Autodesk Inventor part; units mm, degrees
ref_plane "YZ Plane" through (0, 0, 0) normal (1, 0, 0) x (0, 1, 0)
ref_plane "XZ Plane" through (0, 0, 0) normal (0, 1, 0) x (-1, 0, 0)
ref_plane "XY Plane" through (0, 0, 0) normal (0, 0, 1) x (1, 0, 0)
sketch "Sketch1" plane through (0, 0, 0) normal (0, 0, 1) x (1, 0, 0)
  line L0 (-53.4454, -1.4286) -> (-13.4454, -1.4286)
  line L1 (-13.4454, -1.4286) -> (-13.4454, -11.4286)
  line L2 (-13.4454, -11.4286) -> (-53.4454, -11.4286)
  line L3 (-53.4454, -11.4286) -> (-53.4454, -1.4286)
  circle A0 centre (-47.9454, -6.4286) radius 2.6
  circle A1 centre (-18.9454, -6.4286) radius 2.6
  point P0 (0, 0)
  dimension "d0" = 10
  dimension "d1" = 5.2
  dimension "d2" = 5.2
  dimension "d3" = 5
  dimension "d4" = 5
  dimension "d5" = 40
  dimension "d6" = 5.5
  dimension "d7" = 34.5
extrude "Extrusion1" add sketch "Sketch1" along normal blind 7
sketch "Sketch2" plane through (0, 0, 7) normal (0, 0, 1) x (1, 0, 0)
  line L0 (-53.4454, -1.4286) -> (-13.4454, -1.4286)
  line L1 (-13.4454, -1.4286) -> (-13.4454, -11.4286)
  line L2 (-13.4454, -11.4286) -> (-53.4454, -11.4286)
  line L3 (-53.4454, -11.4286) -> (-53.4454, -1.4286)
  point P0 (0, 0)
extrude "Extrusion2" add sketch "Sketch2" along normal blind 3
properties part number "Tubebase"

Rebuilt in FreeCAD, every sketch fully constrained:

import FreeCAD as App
import Part
import Sketcher
from FreeCAD import Vector

doc = App.newDocument("Part")
params = doc.addObject("Spreadsheet::Sheet", "Params")
for row, (alias, value) in enumerate([
    ("sketch1_diameter", "5.2 mm"),
    ("sketch1_width", "40 mm"),
    ("sketch1_height", "10 mm"),
    ("pad1_length", "7 mm"),
    ("sketch2_width", "40 mm"),
    ("sketch2_height", "10 mm"),
    ("pad2_length", "3 mm"),
], start=1):
    params.set(f"A{row}", alias)
    params.set(f"B{row}", "=" + value)
    params.setAlias(f"B{row}", alias)

body = doc.addObject("PartDesign::Body", "Body")

# Sketch on XY plane
sketch1 = body.newObject("Sketcher::SketchObject", "Sketch")
sketch1.AttachmentSupport = (doc.getObject("XY_Plane"), [""])
sketch1.MapMode = "FlatFace"
sketch1.addGeometry(Part.LineSegment(Vector(-13.4454, -1.4286, 0), Vector(-53.4454, -1.4286, 0)), False)
sketch1.addGeometry(Part.LineSegment(Vector(-53.4454, -1.4286, 0), Vector(-53.4454, -11.4286, 0)), False)
sketch1.addGeometry(Part.LineSegment(Vector(-53.4454, -11.4286, 0), Vector(-13.4454, -11.4286, 0)), False)
sketch1.addGeometry(Part.LineSegment(Vector(-13.4454, -11.4286, 0), Vector(-13.4454, -1.4286, 0)), False)
sketch1.addGeometry(Part.Circle(Vector(-47.9454, -6.4286, 0), Vector(0, 0, 1), 2.6), False)
sketch1.addGeometry(Part.Circle(Vector(-18.9454, -6.4286, 0), Vector(0, 0, 1), 2.6), False)
sketch1.addConstraint(Sketcher.Constraint("Coincident", 0, 2, 1, 1))
sketch1.addConstraint(Sketcher.Constraint("Coincident", 1, 2, 2, 1))
sketch1.addConstraint(Sketcher.Constraint("Coincident", 2, 2, 3, 1))
sketch1.addConstraint(Sketcher.Constraint("Coincident", 3, 2, 0, 1))
sketch1.addConstraint(Sketcher.Constraint("Horizontal", 0))
sketch1.addConstraint(Sketcher.Constraint("Vertical", 1))
sketch1.addConstraint(Sketcher.Constraint("Horizontal", 2))
sketch1.addConstraint(Sketcher.Constraint("Vertical", 3))
sketch1.addConstraint(Sketcher.Constraint("Equal", 4, 5))
sketch1.addConstraint(Sketcher.Constraint("Horizontal", 4, 3, 5, 3))
sketch1.addConstraint(Sketcher.Constraint("Diameter", 4, 5.2))
sketch1.addConstraint(Sketcher.Constraint("DistanceX", 0, 2, 0, 1, 40.0))
sketch1.addConstraint(Sketcher.Constraint("DistanceY", 1, 2, 1, 1, 10.0))
sketch1.addConstraint(Sketcher.Constraint("DistanceY", 4, 3, 0, 2, 5.0))
sketch1.addConstraint(Sketcher.Constraint("DistanceX", 0, 2, 4, 3, 5.5))
sketch1.addConstraint(Sketcher.Constraint("DistanceX", 0, 2, 5, 3, 34.5))
sketch1.addConstraint(Sketcher.Constraint("DistanceX", 4, 3, -1, 1, 47.9454))
sketch1.addConstraint(Sketcher.Constraint("DistanceY", 4, 3, -1, 1, 6.4286))
sketch1.setExpression("Constraints[10]", "Params.sketch1_diameter")
sketch1.setExpression("Constraints[11]", "Params.sketch1_width")
sketch1.setExpression("Constraints[12]", "Params.sketch1_height")
pad1 = body.newObject("PartDesign::Pad", "Pad")
pad1.Profile = sketch1
pad1.setExpression("Length", "Params.pad1_length")

# Sketch on XY plane
sketch2 = body.newObject("Sketcher::SketchObject", "Sketch001")
sketch2.AttachmentSupport = (doc.getObject("XY_Plane"), [""])
sketch2.MapMode = "FlatFace"
sketch2.AttachmentOffset = App.Placement(Vector(0, 0, 7), App.Rotation())
sketch2.addGeometry(Part.LineSegment(Vector(-13.4454, -1.4286, 0), Vector(-53.4454, -1.4286, 0)), False)
sketch2.addGeometry(Part.LineSegment(Vector(-53.4454, -1.4286, 0), Vector(-53.4454, -11.4286, 0)), False)
sketch2.addGeometry(Part.LineSegment(Vector(-53.4454, -11.4286, 0), Vector(-13.4454, -11.4286, 0)), False)
sketch2.addGeometry(Part.LineSegment(Vector(-13.4454, -11.4286, 0), Vector(-13.4454, -1.4286, 0)), False)
sketch2.addConstraint(Sketcher.Constraint("Coincident", 0, 2, 1, 1))
sketch2.addConstraint(Sketcher.Constraint("Coincident", 1, 2, 2, 1))
sketch2.addConstraint(Sketcher.Constraint("Coincident", 2, 2, 3, 1))
sketch2.addConstraint(Sketcher.Constraint("Coincident", 3, 2, 0, 1))
sketch2.addConstraint(Sketcher.Constraint("Horizontal", 0))
sketch2.addConstraint(Sketcher.Constraint("Vertical", 1))
sketch2.addConstraint(Sketcher.Constraint("Horizontal", 2))
sketch2.addConstraint(Sketcher.Constraint("Vertical", 3))
sketch2.addConstraint(Sketcher.Constraint("DistanceX", 0, 2, 0, 1, 40.0))
sketch2.addConstraint(Sketcher.Constraint("DistanceY", 1, 2, 1, 1, 10.0))
sketch2.addConstraint(Sketcher.Constraint("DistanceX", 0, 2, -1, 1, 53.4454))
sketch2.addConstraint(Sketcher.Constraint("DistanceY", 0, 2, -1, 1, 1.4286))
sketch2.setExpression("Constraints[8]", "Params.sketch2_width")
sketch2.setExpression("Constraints[9]", "Params.sketch2_height")
pad2 = body.newObject("PartDesign::Pad", "Pad001")
pad2.Profile = sketch2
pad2.setExpression("Length", "Params.pad2_length")

doc.recompute()
